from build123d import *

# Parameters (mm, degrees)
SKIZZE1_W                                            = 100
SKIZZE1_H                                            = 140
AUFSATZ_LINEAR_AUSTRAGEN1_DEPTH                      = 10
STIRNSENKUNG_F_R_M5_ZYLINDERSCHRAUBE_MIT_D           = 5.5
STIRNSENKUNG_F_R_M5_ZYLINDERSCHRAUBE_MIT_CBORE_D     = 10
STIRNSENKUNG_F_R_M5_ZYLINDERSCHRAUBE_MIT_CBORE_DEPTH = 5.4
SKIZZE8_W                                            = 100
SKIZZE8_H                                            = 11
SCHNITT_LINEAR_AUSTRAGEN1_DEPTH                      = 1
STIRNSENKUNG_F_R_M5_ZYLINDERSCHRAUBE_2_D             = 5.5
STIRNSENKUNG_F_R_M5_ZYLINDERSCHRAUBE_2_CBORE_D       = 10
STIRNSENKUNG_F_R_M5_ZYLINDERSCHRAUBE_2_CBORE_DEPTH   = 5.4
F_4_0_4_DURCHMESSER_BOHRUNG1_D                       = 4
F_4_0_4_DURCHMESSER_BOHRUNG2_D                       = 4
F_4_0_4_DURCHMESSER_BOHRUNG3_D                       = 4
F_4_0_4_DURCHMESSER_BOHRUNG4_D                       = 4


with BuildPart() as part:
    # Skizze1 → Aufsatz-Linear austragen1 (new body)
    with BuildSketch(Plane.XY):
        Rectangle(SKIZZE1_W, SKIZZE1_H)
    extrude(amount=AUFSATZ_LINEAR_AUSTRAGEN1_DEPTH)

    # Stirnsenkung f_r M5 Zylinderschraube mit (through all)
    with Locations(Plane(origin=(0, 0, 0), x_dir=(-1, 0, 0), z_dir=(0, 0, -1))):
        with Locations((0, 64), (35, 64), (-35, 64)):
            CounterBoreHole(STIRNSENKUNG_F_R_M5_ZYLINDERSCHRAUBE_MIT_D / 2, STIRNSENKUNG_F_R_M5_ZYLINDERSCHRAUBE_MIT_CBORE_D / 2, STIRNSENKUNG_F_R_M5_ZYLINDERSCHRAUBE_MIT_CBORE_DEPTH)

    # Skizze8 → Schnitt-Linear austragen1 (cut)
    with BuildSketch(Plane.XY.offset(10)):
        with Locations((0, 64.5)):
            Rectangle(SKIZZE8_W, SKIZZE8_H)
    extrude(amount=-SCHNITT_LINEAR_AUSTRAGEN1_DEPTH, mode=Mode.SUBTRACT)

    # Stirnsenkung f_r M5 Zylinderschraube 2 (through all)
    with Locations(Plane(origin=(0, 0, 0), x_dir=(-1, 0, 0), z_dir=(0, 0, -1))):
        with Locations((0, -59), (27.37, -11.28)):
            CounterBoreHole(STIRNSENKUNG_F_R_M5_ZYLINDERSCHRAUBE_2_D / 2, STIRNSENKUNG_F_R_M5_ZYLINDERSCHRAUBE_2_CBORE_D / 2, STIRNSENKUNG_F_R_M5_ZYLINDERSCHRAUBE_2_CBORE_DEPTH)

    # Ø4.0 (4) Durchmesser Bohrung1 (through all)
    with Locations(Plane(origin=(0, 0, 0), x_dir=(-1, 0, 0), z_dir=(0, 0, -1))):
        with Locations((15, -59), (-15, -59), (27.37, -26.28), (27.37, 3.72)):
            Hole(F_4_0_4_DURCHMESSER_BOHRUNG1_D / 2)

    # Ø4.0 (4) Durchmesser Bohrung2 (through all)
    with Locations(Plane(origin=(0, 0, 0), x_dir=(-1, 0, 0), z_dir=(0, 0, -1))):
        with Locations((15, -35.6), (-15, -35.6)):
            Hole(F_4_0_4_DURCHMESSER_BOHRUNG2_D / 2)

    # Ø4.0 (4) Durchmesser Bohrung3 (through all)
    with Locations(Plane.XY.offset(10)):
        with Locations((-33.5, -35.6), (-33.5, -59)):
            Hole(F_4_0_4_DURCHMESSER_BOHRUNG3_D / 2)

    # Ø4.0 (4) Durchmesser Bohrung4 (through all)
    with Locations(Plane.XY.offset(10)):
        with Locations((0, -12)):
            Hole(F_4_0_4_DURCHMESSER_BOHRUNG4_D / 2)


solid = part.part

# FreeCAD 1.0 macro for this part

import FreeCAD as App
import Part
import Sketcher
Q = App.Units.Quantity


def add_polygon(sketch, points):
    """Adds a closed chain of lines whose ends are joined by coincident constraints."""
    first, n = sketch.GeometryCount, len(points)
    for a, b in zip(points, points[1:] + points[:1]):
        sketch.addGeometry(Part.LineSegment(App.Vector(*a, 0), App.Vector(*b, 0)), False)
    for i in range(n):
        sketch.addConstraint(Sketcher.Constraint("Coincident", first + i, 2, first + (i + 1) % n, 1))

doc = App.newDocument("Part")
body = doc.addObject("PartDesign::Body", "Body")

sketch1 = body.newObject("Sketcher::SketchObject", "Sketch")
sketch1.AttachmentSupport = (doc.getObject("XY_Plane"), [""])
sketch1.MapMode = "FlatFace"
add_polygon(sketch1, [(-50, 70), (-50, -70), (50, -70), (50, 70)])
sketch1.addConstraint([
    Sketcher.Constraint("Vertical", 0),
    Sketcher.Constraint("Horizontal", 1),
    Sketcher.Constraint("Vertical", 2),
    Sketcher.Constraint("Horizontal", 3),
    Sketcher.Constraint("Symmetric", 0, 2, 2, 2, -1, 1),
    Sketcher.Constraint("DistanceX", 1, 1, 1, 2, Q("100 mm")),
    Sketcher.Constraint("DistanceY", 0, 2, 0, 1, Q("140 mm")),
])
pad1 = body.newObject("PartDesign::Pad", "Pad")
pad1.Profile = sketch1
pad1.Length = 10

sketch2 = body.newObject("Sketcher::SketchObject", "Sketch001")
sketch2.AttachmentSupport = (doc.getObject("XY_Plane"), [""])
sketch2.MapMode = "FlatFace"
sketch2.addGeometry([
    Part.Circle(App.Vector(0, 64, 0), App.Vector(0, 0, 1), 2.8),
    Part.Circle(App.Vector(-35, 64, 0), App.Vector(0, 0, 1), 2.8),
    Part.Circle(App.Vector(35, 64, 0), App.Vector(0, 0, 1), 2.8),
], False)
sketch2.addConstraint([
    Sketcher.Constraint("Equal", 0, 1),
    Sketcher.Constraint("Equal", 1, 2),
    Sketcher.Constraint("Symmetric", 1, 3, 2, 3, -2),
    Sketcher.Constraint("PointOnObject", 0, 3, -2),
    Sketcher.Constraint("Horizontal", 0, 3, 1, 3),
    Sketcher.Constraint("Diameter", 0, Q("5.5 mm")),
    Sketcher.Constraint("DistanceY", -1, 1, 0, 3, Q("64 mm")),
    Sketcher.Constraint("DistanceX", 1, 3, -1, 1, Q("35 mm")),
])
doc.recompute()
hole = body.newObject("PartDesign::Hole", "Hole")
hole.Profile = sketch2
hole.ThreadType = "None"
hole.Diameter = 5.5
hole.DepthType = "ThroughAll"
hole.HoleCutType = "Counterbore"
hole.HoleCutDiameter = 10
hole.HoleCutDepth = 5.4
hole.Reversed = True

sketch3 = body.newObject("Sketcher::SketchObject", "Sketch002")
sketch3.AttachmentSupport = (doc.getObject("XY_Plane"), [""])
sketch3.MapMode = "FlatFace"
sketch3.AttachmentOffset = App.Placement(App.Vector(0, 0, 10), App.Rotation())
add_polygon(sketch3, [(-50, 70), (-50, 59), (50, 59), (50, 70)])
sketch3.addConstraint([
    Sketcher.Constraint("Vertical", 0),
    Sketcher.Constraint("Horizontal", 1),
    Sketcher.Constraint("Vertical", 2),
    Sketcher.Constraint("Horizontal", 3),
    Sketcher.Constraint("DistanceX", 1, 1, 1, 2, Q("100 mm")),
    Sketcher.Constraint("DistanceY", 0, 2, 0, 1, Q("11 mm")),
    Sketcher.Constraint("DistanceX", 0, 2, -1, 1, Q("50 mm")),
    Sketcher.Constraint("DistanceY", -1, 1, 0, 2, Q("59 mm")),
])
pocket1 = body.newObject("PartDesign::Pocket", "Pocket")
pocket1.Profile = sketch3
pocket1.Length = 1

sketch4 = body.newObject("Sketcher::SketchObject", "Sketch003")
sketch4.AttachmentSupport = (doc.getObject("XY_Plane"), [""])
sketch4.MapMode = "FlatFace"
sketch4.addGeometry([
    Part.Circle(App.Vector(0, -59, 0), App.Vector(0, 0, 1), 2.8),
    Part.Circle(App.Vector(-27.4, -11.3, 0), App.Vector(0, 0, 1), 2.8),
], False)
sketch4.addConstraint([
    Sketcher.Constraint("Equal", 0, 1),
    Sketcher.Constraint("PointOnObject", 0, 3, -2),
    Sketcher.Constraint("Diameter", 0, Q("5.5 mm")),
    Sketcher.Constraint("DistanceY", 0, 3, -1, 1, Q("59 mm")),
    Sketcher.Constraint("DistanceX", 1, 3, -1, 1, Q("27.37 mm")),
    Sketcher.Constraint("DistanceY", 1, 3, -1, 1, Q("11.28 mm")),
])
doc.recompute()
hole2 = body.newObject("PartDesign::Hole", "Hole001")
hole2.Profile = sketch4
hole2.ThreadType = "None"
hole2.Diameter = 5.5
hole2.DepthType = "ThroughAll"
hole2.HoleCutType = "Counterbore"
hole2.HoleCutDiameter = 10
hole2.HoleCutDepth = 5.4
hole2.Reversed = True

sketch5 = body.newObject("Sketcher::SketchObject", "Sketch004")
sketch5.AttachmentSupport = (doc.getObject("XY_Plane"), [""])
sketch5.MapMode = "FlatFace"
sketch5.addGeometry([
    Part.Circle(App.Vector(-15, -59, 0), App.Vector(0, 0, 1), 2),
    Part.Circle(App.Vector(15, -59, 0), App.Vector(0, 0, 1), 2),
    Part.Circle(App.Vector(-27.4, -26.3, 0), App.Vector(0, 0, 1), 2),
    Part.Circle(App.Vector(-27.4, 3.7, 0), App.Vector(0, 0, 1), 2),
], False)
sketch5.addConstraint([
    Sketcher.Constraint("Equal", 0, 1),
    Sketcher.Constraint("Equal", 1, 2),
    Sketcher.Constraint("Equal", 2, 3),
    Sketcher.Constraint("Symmetric", 0, 3, 1, 3, -2),
    Sketcher.Constraint("Vertical", 2, 3, 3, 3),
    Sketcher.Constraint("Diameter", 0, Q("4 mm")),
    Sketcher.Constraint("DistanceX", 0, 3, -1, 1, Q("15 mm")),
    Sketcher.Constraint("DistanceY", 0, 3, -1, 1, Q("59 mm")),
    Sketcher.Constraint("DistanceY", 2, 3, 3, 3, Q("30 mm")),
    Sketcher.Constraint("DistanceX", 2, 3, -1, 1, Q("27.37 mm")),
    Sketcher.Constraint("DistanceY", 2, 3, -1, 1, Q("26.28 mm")),
])
doc.recompute()
hole3 = body.newObject("PartDesign::Hole", "Hole002")
hole3.Profile = sketch5
hole3.ThreadType = "None"
hole3.Diameter = 4
hole3.DepthType = "ThroughAll"
hole3.Reversed = True

sketch6 = body.newObject("Sketcher::SketchObject", "Sketch005")
sketch6.AttachmentSupport = (doc.getObject("XY_Plane"), [""])
sketch6.MapMode = "FlatFace"
sketch6.addGeometry([
    Part.Circle(App.Vector(-15, -35.6, 0), App.Vector(0, 0, 1), 2),
    Part.Circle(App.Vector(15, -35.6, 0), App.Vector(0, 0, 1), 2),
], False)
sketch6.addConstraint([
    Sketcher.Constraint("Equal", 0, 1),
    Sketcher.Constraint("Symmetric", 0, 3, 1, 3, -2),
    Sketcher.Constraint("Diameter", 0, Q("4 mm")),
    Sketcher.Constraint("DistanceX", 0, 3, -1, 1, Q("15 mm")),
    Sketcher.Constraint("DistanceY", 0, 3, -1, 1, Q("35.6 mm")),
])
doc.recompute()
hole4 = body.newObject("PartDesign::Hole", "Hole003")
hole4.Profile = sketch6
hole4.ThreadType = "None"
hole4.Diameter = 4
hole4.DepthType = "ThroughAll"
hole4.Reversed = True

sketch7 = body.newObject("Sketcher::SketchObject", "Sketch006")
sketch7.AttachmentSupport = (doc.getObject("XY_Plane"), [""])
sketch7.MapMode = "FlatFace"
sketch7.AttachmentOffset = App.Placement(App.Vector(0, 0, 10), App.Rotation())
sketch7.addGeometry([
    Part.Circle(App.Vector(-33.5, -35.6, 0), App.Vector(0, 0, 1), 2),
    Part.Circle(App.Vector(-33.5, -59, 0), App.Vector(0, 0, 1), 2),
], False)
sketch7.addConstraint([
    Sketcher.Constraint("Equal", 0, 1),
    Sketcher.Constraint("Vertical", 0, 3, 1, 3),
    Sketcher.Constraint("Diameter", 0, Q("4 mm")),
    Sketcher.Constraint("DistanceY", 1, 3, -1, 1, Q("59 mm")),
    Sketcher.Constraint("DistanceX", 0, 3, -1, 1, Q("33.5 mm")),
    Sketcher.Constraint("DistanceY", 0, 3, -1, 1, Q("35.6 mm")),
])
doc.recompute()
hole5 = body.newObject("PartDesign::Hole", "Hole004")
hole5.Profile = sketch7
hole5.ThreadType = "None"
hole5.Diameter = 4
hole5.DepthType = "ThroughAll"

sketch8 = body.newObject("Sketcher::SketchObject", "Sketch007")
sketch8.AttachmentSupport = (doc.getObject("XY_Plane"), [""])
sketch8.MapMode = "FlatFace"
sketch8.AttachmentOffset = App.Placement(App.Vector(0, 0, 10), App.Rotation())
sketch8.addGeometry(Part.Circle(App.Vector(0, -12, 0), App.Vector(0, 0, 1), 2), False)
sketch8.addConstraint([
    Sketcher.Constraint("PointOnObject", 0, 3, -2),
    Sketcher.Constraint("Diameter", 0, Q("4 mm")),
    Sketcher.Constraint("DistanceY", 0, 3, -1, 1, Q("12 mm")),
])
doc.recompute()
hole6 = body.newObject("PartDesign::Hole", "Hole005")
hole6.Profile = sketch8
hole6.ThreadType = "None"
hole6.Diameter = 4
hole6.DepthType = "ThroughAll"

doc.recompute()
